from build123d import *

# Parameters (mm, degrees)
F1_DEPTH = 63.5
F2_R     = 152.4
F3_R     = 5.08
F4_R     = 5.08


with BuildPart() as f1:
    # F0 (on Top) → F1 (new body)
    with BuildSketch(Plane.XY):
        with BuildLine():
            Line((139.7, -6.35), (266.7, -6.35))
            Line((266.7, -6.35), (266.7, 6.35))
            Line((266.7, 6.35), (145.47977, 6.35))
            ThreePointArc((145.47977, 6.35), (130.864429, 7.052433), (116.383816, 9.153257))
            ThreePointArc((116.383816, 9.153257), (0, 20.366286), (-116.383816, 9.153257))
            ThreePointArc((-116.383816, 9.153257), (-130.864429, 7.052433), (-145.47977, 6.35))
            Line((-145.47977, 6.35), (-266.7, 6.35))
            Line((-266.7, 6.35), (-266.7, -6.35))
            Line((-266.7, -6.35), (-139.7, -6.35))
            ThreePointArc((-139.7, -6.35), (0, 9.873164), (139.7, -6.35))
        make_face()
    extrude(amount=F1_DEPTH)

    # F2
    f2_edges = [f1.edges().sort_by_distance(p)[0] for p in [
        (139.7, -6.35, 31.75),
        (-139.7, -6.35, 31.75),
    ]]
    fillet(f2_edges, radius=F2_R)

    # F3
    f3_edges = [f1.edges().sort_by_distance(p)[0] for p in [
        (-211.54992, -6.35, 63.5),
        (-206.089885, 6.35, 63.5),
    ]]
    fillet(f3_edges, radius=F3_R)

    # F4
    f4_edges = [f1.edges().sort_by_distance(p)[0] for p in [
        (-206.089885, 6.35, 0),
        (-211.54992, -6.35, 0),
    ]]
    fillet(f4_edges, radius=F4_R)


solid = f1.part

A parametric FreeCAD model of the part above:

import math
import FreeCAD as App
import Part
import Sketcher
from FreeCAD import Vector
Q = App.Units.Quantity


def edges_at(feature, points):
    """Names of the edges that pass closest to the given points."""
    edges = feature.Shape.Edges
    near = lambda p: min(range(len(edges)), key=lambda i: edges[i].distToShape(Part.Vertex(*p))[0])
    return sorted({f"Edge{near(p) + 1}" for p in points})

doc = App.newDocument("Part")
body = doc.addObject("PartDesign::Body", "Body")

sketch1 = body.newObject("Sketcher::SketchObject", "Sketch")
sketch1.AttachmentSupport = (doc.getObject("XY_Plane"), [""])
sketch1.MapMode = "FlatFace"
sketch1.addGeometry([
    Part.LineSegment(Vector(140, -6, 0), Vector(267, -6, 0)),
    Part.LineSegment(Vector(267, -6, 0), Vector(267, 6, 0)),
    Part.LineSegment(Vector(267, 6, 0), Vector(145, 6, 0)),
    Part.ArcOfCircle(Part.Circle(Vector(145, 159, 0), Vector(0, 0, 1), 152), math.radians(-101.01), math.radians(-90)),
    Part.ArcOfCircle(Part.Circle(Vector(0, -589, 0), Vector(0, 0, 1), 610), math.radians(79), math.radians(101)),
    Part.ArcOfCircle(Part.Circle(Vector(-145, 159, 0), Vector(0, 0, 1), 152), math.radians(-90), math.radians(-78.99)),
    Part.LineSegment(Vector(-145, 6, 0), Vector(-267, 6, 0)),
    Part.LineSegment(Vector(-267, 6, 0), Vector(-267, -6, 0)),
    Part.LineSegment(Vector(-267, -6, 0), Vector(-140, -6, 0)),
    Part.ArcOfCircle(Part.Circle(Vector(0, -600, 0), Vector(0, 0, 1), 610), math.radians(77), math.radians(103)),
], False)
sketch1.addConstraint([
    Sketcher.Constraint("Coincident", 0, 2, 1, 1),
    Sketcher.Constraint("Coincident", 1, 2, 2, 1),
    Sketcher.Constraint("Tangent", 2, 2, 3, 2),
    Sketcher.Constraint("Tangent", 3, 1, 4, 1),
    Sketcher.Constraint("Tangent", 4, 2, 5, 2),
    Sketcher.Constraint("Tangent", 5, 1, 6, 1),
    Sketcher.Constraint("Coincident", 6, 2, 7, 1),
    Sketcher.Constraint("Coincident", 7, 2, 8, 1),
    Sketcher.Constraint("Coincident", 8, 2, 9, 2),
    Sketcher.Constraint("Coincident", 9, 1, 0, 1),
    Sketcher.Constraint("Horizontal", 0),
    Sketcher.Constraint("Vertical", 1),
    Sketcher.Constraint("Horizontal", 2),
    Sketcher.Constraint("Horizontal", 6),
    Sketcher.Constraint("Vertical", 7),
    Sketcher.Constraint("Horizontal", 8),
    Sketcher.Constraint("Equal", 3, 5),
    Sketcher.Constraint("Equal", 4, 9),
    Sketcher.Constraint("Symmetric", 0, 2, 6, 2, -1, 1),
    Sketcher.Constraint("Symmetric", 3, 3, 5, 3, -2),
    Sketcher.Constraint("Symmetric", 8, 2, 9, 1, -2),
    Sketcher.Constraint("Radius", 3, Q("6 in")),
    Sketcher.Constraint("DistanceX", 0, 1, 0, 2, Q("5 in")),
    Sketcher.Constraint("DistanceY", 1, 1, 1, 2, Q("0.5 in")),
    Sketcher.Constraint("DistanceX", -1, 1, 0, 2, Q("10.5 in")),
    Sketcher.Constraint("Radius", 4, 609.599986),
    Sketcher.Constraint("DistanceX", 5, 3, 3, 3, Q("11.4550999 in")),
])
pad1 = body.newObject("PartDesign::Pad", "Pad")
pad1.Profile = sketch1
pad1.Length = Q("2.5 in")
doc.recompute()

fillet = body.newObject("PartDesign::Fillet", "Fillet")
fillet.Base = (pad1, edges_at(pad1, [(139.7, -6.35, 31.75), (-139.7, -6.35, 31.75)]))
fillet.Radius = Q("6 in")
doc.recompute()

fillet2 = body.newObject("PartDesign::Fillet", "Fillet001")
fillet2.Base = (fillet, edges_at(fillet, [(-211.55, -6.35, 63.5), (-206.09, 6.35, 63.5)]))
fillet2.Radius = Q("0.2 in")
doc.recompute()

fillet3 = body.newObject("PartDesign::Fillet", "Fillet002")
fillet3.Base = (fillet2, edges_at(fillet2, [(-206.09, 6.35, 0), (-211.55, -6.35, 0)]))
fillet3.Radius = Q("0.2 in")

doc.recompute()
